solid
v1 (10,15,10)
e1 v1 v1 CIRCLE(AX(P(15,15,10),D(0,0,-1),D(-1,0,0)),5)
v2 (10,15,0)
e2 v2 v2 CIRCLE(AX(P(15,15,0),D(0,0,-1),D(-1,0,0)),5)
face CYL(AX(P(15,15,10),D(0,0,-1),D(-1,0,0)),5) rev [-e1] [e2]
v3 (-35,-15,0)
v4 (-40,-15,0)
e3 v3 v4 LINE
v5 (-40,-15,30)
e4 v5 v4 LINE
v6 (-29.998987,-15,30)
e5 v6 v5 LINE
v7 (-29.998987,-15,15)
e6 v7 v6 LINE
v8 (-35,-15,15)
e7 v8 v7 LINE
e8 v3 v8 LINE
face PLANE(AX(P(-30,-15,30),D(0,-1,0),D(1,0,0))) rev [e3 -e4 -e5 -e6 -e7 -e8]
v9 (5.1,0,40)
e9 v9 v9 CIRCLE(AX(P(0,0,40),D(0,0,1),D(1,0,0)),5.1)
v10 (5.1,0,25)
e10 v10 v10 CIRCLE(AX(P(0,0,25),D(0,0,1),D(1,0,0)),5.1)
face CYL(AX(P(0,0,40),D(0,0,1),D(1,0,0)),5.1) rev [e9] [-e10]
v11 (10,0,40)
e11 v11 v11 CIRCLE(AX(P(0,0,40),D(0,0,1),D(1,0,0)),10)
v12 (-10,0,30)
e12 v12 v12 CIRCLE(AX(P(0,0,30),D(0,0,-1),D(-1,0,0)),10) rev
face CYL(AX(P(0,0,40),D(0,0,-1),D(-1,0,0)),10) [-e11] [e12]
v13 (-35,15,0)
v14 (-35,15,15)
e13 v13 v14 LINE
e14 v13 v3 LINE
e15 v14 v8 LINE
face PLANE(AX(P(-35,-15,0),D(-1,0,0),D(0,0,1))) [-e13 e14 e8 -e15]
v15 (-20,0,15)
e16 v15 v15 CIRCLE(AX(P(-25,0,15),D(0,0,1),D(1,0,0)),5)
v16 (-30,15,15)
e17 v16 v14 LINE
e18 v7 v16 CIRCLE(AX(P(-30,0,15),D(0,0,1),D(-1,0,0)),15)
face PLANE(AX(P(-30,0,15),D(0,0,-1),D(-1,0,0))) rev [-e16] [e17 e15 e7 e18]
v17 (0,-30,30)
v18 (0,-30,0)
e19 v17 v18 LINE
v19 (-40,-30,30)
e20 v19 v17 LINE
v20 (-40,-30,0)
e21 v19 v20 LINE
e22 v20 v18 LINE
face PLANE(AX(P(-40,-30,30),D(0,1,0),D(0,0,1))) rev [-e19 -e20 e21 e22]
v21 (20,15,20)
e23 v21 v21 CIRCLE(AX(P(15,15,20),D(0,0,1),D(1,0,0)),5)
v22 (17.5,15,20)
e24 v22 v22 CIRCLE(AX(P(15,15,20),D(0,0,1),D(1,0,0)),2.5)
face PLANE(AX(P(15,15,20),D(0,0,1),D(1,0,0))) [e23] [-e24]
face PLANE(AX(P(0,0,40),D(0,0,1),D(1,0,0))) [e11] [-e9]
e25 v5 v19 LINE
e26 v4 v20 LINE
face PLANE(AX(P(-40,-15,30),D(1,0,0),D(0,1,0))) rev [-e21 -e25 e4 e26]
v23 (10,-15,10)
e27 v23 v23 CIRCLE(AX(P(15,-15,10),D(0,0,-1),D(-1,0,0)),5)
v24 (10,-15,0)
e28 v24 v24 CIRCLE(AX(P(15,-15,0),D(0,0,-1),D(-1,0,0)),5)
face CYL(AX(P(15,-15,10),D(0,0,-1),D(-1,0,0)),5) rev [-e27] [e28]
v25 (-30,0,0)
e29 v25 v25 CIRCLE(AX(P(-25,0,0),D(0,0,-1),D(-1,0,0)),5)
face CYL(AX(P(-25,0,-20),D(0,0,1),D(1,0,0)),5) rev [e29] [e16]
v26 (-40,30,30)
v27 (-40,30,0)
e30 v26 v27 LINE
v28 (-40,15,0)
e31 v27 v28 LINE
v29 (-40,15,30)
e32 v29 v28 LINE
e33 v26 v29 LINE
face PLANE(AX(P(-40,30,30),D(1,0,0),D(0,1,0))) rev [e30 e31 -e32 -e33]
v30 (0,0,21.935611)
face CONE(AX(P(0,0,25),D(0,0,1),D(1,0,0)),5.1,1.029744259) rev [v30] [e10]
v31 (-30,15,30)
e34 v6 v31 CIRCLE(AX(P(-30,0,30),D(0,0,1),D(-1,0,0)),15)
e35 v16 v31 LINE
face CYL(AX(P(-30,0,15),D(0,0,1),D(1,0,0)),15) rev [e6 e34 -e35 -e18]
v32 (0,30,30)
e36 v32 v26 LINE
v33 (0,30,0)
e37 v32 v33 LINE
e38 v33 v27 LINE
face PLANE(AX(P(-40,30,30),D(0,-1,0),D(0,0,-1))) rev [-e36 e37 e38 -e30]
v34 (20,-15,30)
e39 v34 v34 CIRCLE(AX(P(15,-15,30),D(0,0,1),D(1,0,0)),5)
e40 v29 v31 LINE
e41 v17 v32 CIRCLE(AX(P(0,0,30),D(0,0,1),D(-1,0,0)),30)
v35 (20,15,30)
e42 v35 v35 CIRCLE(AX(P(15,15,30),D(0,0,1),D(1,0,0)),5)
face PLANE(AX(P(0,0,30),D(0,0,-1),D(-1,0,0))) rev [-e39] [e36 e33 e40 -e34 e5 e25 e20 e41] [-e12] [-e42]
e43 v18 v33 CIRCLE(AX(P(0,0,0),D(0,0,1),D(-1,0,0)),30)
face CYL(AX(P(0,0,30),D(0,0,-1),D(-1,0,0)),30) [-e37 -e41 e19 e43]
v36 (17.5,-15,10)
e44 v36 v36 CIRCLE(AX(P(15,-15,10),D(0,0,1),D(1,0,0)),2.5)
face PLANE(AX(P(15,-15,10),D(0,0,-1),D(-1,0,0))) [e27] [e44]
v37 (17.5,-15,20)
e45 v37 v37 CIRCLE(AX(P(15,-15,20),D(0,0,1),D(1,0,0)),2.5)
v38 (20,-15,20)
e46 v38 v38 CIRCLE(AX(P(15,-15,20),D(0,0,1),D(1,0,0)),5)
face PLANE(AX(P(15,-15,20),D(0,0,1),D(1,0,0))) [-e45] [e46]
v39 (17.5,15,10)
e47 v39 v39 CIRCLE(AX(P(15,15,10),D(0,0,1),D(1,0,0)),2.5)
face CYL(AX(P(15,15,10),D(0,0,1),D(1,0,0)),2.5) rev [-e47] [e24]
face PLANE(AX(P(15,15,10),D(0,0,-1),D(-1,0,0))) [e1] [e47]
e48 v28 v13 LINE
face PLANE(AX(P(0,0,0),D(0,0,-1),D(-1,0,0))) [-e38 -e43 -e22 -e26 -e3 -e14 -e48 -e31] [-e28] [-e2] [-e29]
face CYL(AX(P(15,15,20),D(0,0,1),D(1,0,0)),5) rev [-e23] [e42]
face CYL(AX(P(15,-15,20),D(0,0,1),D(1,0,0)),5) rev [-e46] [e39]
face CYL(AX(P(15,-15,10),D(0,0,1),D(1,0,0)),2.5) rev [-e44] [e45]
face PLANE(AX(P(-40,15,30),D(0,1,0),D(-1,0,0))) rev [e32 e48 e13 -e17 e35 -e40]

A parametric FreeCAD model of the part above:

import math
import FreeCAD as App
import Part
import Sketcher
from FreeCAD import Vector
Q = App.Units.Quantity

doc = App.newDocument("Part")
body = doc.addObject("PartDesign::Body", "Body")

# Sketch on XY plane
sketch1 = body.newObject("Sketcher::SketchObject", "Sketch")
sketch1.AttachmentSupport = (doc.getObject("XY_Plane"), [""])
sketch1.MapMode = "FlatFace"
sketch1.addGeometry([
    Part.LineSegment(Vector(-40, 30, 0), Vector(-40, 15, 0)),  # 0
    Part.LineSegment(Vector(-40, 15, 0), Vector(-30, 15, 0)),  # 1
    Part.ArcOfCircle(Part.Circle(Vector(-30, 0, 0), Vector(0, 0, 1), 15), math.radians(-90), math.radians(90)),  # 2
    Part.LineSegment(Vector(-30, -15, 0), Vector(-40, -15, 0)),  # 3
    Part.LineSegment(Vector(-40, -15, 0), Vector(-40, -30, 0)),  # 4
    Part.LineSegment(Vector(-40, -30, 0), Vector(0, -30, 0)),  # 5
    Part.ArcOfCircle(Part.Circle(Vector(0, 0, 0), Vector(0, 0, 1), 30), math.radians(-90), math.radians(90)),  # 6
    Part.LineSegment(Vector(0, 30, 0), Vector(-40, 30, 0)),  # 7
], False)
sketch1.addConstraint([
    Sketcher.Constraint("Coincident", 0, 2, 1, 1),
    Sketcher.Constraint("Tangent", 1, 2, 2, 2),
    Sketcher.Constraint("Tangent", 2, 1, 3, 1),
    Sketcher.Constraint("Coincident", 3, 2, 4, 1),
    Sketcher.Constraint("Coincident", 4, 2, 5, 1),
    Sketcher.Constraint("Tangent", 5, 2, 6, 1),
    Sketcher.Constraint("Tangent", 6, 2, 7, 1),
    Sketcher.Constraint("Coincident", 7, 2, 0, 1),
    Sketcher.Constraint("Vertical", 0),
    Sketcher.Constraint("Horizontal", 1),
    Sketcher.Constraint("Horizontal", 3),
    Sketcher.Constraint("Vertical", 4),
    Sketcher.Constraint("Horizontal", 5),
    Sketcher.Constraint("Horizontal", 7),
    Sketcher.Constraint("Coincident", 6, 3, -1, 1),
    Sketcher.Constraint("Symmetric", 0, 2, 3, 2, -1),
    Sketcher.Constraint("Radius", 2, Q("15 mm")),
    Sketcher.Constraint("Radius", 6, Q("30 mm")),
    Sketcher.Constraint("DistanceX", 1, 1, 1, 2, Q("10 mm")),
    Sketcher.Constraint("DistanceX", 5, 1, 5, 2, Q("40 mm")),
])
pad1 = body.newObject("PartDesign::Pad", "Pad")
pad1.Profile = sketch1
pad1.Length = 30

# Sketch on XY plane
sketch2 = body.newObject("Sketcher::SketchObject", "Sketch001")
sketch2.AttachmentSupport = (doc.getObject("XY_Plane"), [""])
sketch2.MapMode = "FlatFace"
sketch2.AttachmentOffset = App.Placement(Vector(0, 0, 30), App.Rotation())
sketch2.addGeometry([
    Part.LineSegment(Vector(-30, 15, 0), Vector(-35, 15, 0)),
    Part.LineSegment(Vector(-35, 15, 0), Vector(-35, -15, 0)),
    Part.LineSegment(Vector(-35, -15, 0), Vector(-30, -15, 0)),
    Part.ArcOfCircle(Part.Circle(Vector(-30, 0, 0), Vector(0, 0, 1), 15), math.radians(-90), math.radians(90)),
], False)
sketch2.addConstraint([
    Sketcher.Constraint("Coincident", 0, 2, 1, 1),
    Sketcher.Constraint("Coincident", 1, 2, 2, 1),
    Sketcher.Constraint("Tangent", 2, 2, 3, 1),
    Sketcher.Constraint("Tangent", 3, 2, 0, 1),
    Sketcher.Constraint("Horizontal", 0),
    Sketcher.Constraint("Vertical", 1),
    Sketcher.Constraint("Horizontal", 2),
    Sketcher.Constraint("PointOnObject", 3, 3, -1),
    Sketcher.Constraint("Radius", 3, Q("15 mm")),
    Sketcher.Constraint("DistanceX", 0, 2, 0, 1, Q("5 mm")),
    Sketcher.Constraint("DistanceX", 3, 3, -1, 1, Q("30 mm")),
])
pad2 = body.newObject("PartDesign::Pad", "Pad001")
pad2.Profile = sketch2
pad2.Length = 30
pad2.Reversed = True

# Sketch on XY plane
sketch3 = body.newObject("Sketcher::SketchObject", "Sketch002")
sketch3.AttachmentSupport = (doc.getObject("XY_Plane"), [""])
sketch3.MapMode = "FlatFace"
sketch3.AttachmentOffset = App.Placement(Vector(0, 0, 30), App.Rotation())
sketch3.addGeometry([
    Part.LineSegment(Vector(-30, 15, 0), Vector(-35, 15, 0)),
    Part.LineSegment(Vector(-35, 15, 0), Vector(-35, -15, 0)),
    Part.LineSegment(Vector(-35, -15, 0), Vector(-29.998987, -15, 0)),
    Part.ArcOfCircle(Part.Circle(Vector(-30, 0, 0), Vector(0, 0, 1), 15), math.radians(-89.99613), math.radians(90)),
], False)
sketch3.addConstraint([
    Sketcher.Constraint("Coincident", 0, 2, 1, 1),
    Sketcher.Constraint("Coincident", 1, 2, 2, 1),
    Sketcher.Constraint("Coincident", 2, 2, 3, 1),
    Sketcher.Constraint("Tangent", 3, 2, 0, 1),
    Sketcher.Constraint("Horizontal", 0),
    Sketcher.Constraint("Vertical", 1),
    Sketcher.Constraint("Horizontal", 2),
    Sketcher.Constraint("PointOnObject", 3, 3, -1),
    Sketcher.Constraint("Radius", 3, Q("15 mm")),
    Sketcher.Constraint("DistanceX", 0, 2, 0, 1, Q("5 mm")),
    Sketcher.Constraint("DistanceX", 3, 3, -1, 1, Q("30 mm")),
    Sketcher.Constraint("DistanceX", 2, 1, 2, 2, Q("5.001013 mm")),
])
pocket1 = body.newObject("PartDesign::Pocket", "Pocket")
pocket1.Profile = sketch3
pocket1.Length = 15

# Sketch on XY plane
sketch4 = body.newObject("Sketcher::SketchObject", "Sketch003")
sketch4.AttachmentSupport = (doc.getObject("XY_Plane"), [""])
sketch4.MapMode = "FlatFace"
sketch4.AttachmentOffset = App.Placement(Vector(0, 0, 15), App.Rotation())
sketch4.addGeometry(Part.Circle(Vector(-25, 0, 0), Vector(0, 0, 1), 5), False)
sketch4.addConstraint([
    Sketcher.Constraint("PointOnObject", 0, 3, -1),
    Sketcher.Constraint("Diameter", 0, Q("10 mm")),
    Sketcher.Constraint("DistanceX", 0, 3, -1, 1, Q("25 mm")),
])
pocket2 = body.newObject("PartDesign::Pocket", "Pocket001")
pocket2.Profile = sketch4
pocket2.Length = 35

# Sketch on XY plane
sketch5 = body.newObject("Sketcher::SketchObject", "Sketch004")
sketch5.AttachmentSupport = (doc.getObject("XY_Plane"), [""])
sketch5.MapMode = "FlatFace"
sketch5.AttachmentOffset = App.Placement(Vector(0, 0, 30), App.Rotation())
sketch5.addGeometry(Part.Circle(Vector(0, 0, 0), Vector(0, 0, 1), 10), False)
sketch5.addConstraint([
    Sketcher.Constraint("Coincident", 0, 3, -1, 1),
    Sketcher.Constraint("Diameter", 0, Q("20 mm")),
])
pad3 = body.newObject("PartDesign::Pad", "Pad002")
pad3.Profile = sketch5
pad3.Length = 10

# Sketch on XY plane
sketch6 = body.newObject("Sketcher::SketchObject", "Sketch005")
sketch6.AttachmentSupport = (doc.getObject("XY_Plane"), [""])
sketch6.MapMode = "FlatFace"
sketch6.AttachmentOffset = App.Placement(Vector(0, 0, 30), App.Rotation())
sketch6.addGeometry([
    Part.Circle(Vector(15, 15, 0), Vector(0, 0, 1), 5),
    Part.Circle(Vector(15, -15, 0), Vector(0, 0, 1), 5),
], False)
sketch6.addConstraint([
    Sketcher.Constraint("Equal", 0, 1),
    Sketcher.Constraint("Symmetric", 0, 3, 1, 3, -1),
    Sketcher.Constraint("Diameter", 0, Q("10 mm")),
    Sketcher.Constraint("DistanceX", -1, 1, 0, 3, Q("15 mm")),
    Sketcher.Constraint("DistanceY", -1, 1, 0, 3, Q("15 mm")),
])
pocket3 = body.newObject("PartDesign::Pocket", "Pocket002")
pocket3.Profile = sketch6
pocket3.Length = 10

# Sketch on XY plane
sketch7 = body.newObject("Sketcher::SketchObject", "Sketch006")
sketch7.AttachmentSupport = (doc.getObject("XY_Plane"), [""])
sketch7.MapMode = "FlatFace"
sketch7.AttachmentOffset = App.Placement(Vector(0, 0, 20), App.Rotation())
sketch7.addGeometry([
    Part.Circle(Vector(15, 15, 0), Vector(0, 0, 1), 2.5),
    Part.Circle(Vector(15, -15, 0), Vector(0, 0, 1), 2.5),
], False)
sketch7.addConstraint([
    Sketcher.Constraint("Equal", 0, 1),
    Sketcher.Constraint("Symmetric", 0, 3, 1, 3, -1),
    Sketcher.Constraint("Diameter", 0, Q("5 mm")),
    Sketcher.Constraint("DistanceX", -1, 1, 0, 3, Q("15 mm")),
    Sketcher.Constraint("DistanceY", -1, 1, 0, 3, Q("15 mm")),
])
pocket4 = body.newObject("PartDesign::Pocket", "Pocket003")
pocket4.Profile = sketch7
pocket4.Length = 10

# Sketch on XY plane
sketch8 = body.newObject("Sketcher::SketchObject", "Sketch007")
sketch8.AttachmentSupport = (doc.getObject("XY_Plane"), [""])
sketch8.MapMode = "FlatFace"
sketch8.addGeometry([
    Part.Circle(Vector(15, 15, 0), Vector(0, 0, 1), 5),
    Part.Circle(Vector(15, -15, 0), Vector(0, 0, 1), 5),
], False)
sketch8.addConstraint([
    Sketcher.Constraint("Equal", 0, 1),
    Sketcher.Constraint("Symmetric", 0, 3, 1, 3, -1),
    Sketcher.Constraint("Diameter", 0, Q("10 mm")),
    Sketcher.Constraint("DistanceX", -1, 1, 0, 3, Q("15 mm")),
    Sketcher.Constraint("DistanceY", -1, 1, 0, 3, Q("15 mm")),
])
pocket5 = body.newObject("PartDesign::Pocket", "Pocket004")
pocket5.Profile = sketch8
pocket5.Length = 10
pocket5.Reversed = True

# Sketch on XY plane
sketch9 = body.newObject("Sketcher::SketchObject", "Sketch008")
sketch9.AttachmentSupport = (doc.getObject("XY_Plane"), [""])
sketch9.MapMode = "FlatFace"
sketch9.AttachmentOffset = App.Placement(Vector(0, 0, 40), App.Rotation())
sketch9.addGeometry(Part.Circle(Vector(0, 0, 0), Vector(0, 0, 1), 5.1), False)
sketch9.addConstraint([
    Sketcher.Constraint("Coincident", 0, 3, -1, 1),
    Sketcher.Constraint("Diameter", 0, Q("10.2 mm")),
])
doc.recompute()
hole = body.newObject("PartDesign::Hole", "Hole")
hole.Profile = sketch9
hole.ThreadType = "None"
hole.Diameter = 10.2
hole.DepthType = "Dimension"
hole.Depth = 15
hole.DrillPoint = "Angled"
hole.DrillPointAngle = 118

doc.recompute()
